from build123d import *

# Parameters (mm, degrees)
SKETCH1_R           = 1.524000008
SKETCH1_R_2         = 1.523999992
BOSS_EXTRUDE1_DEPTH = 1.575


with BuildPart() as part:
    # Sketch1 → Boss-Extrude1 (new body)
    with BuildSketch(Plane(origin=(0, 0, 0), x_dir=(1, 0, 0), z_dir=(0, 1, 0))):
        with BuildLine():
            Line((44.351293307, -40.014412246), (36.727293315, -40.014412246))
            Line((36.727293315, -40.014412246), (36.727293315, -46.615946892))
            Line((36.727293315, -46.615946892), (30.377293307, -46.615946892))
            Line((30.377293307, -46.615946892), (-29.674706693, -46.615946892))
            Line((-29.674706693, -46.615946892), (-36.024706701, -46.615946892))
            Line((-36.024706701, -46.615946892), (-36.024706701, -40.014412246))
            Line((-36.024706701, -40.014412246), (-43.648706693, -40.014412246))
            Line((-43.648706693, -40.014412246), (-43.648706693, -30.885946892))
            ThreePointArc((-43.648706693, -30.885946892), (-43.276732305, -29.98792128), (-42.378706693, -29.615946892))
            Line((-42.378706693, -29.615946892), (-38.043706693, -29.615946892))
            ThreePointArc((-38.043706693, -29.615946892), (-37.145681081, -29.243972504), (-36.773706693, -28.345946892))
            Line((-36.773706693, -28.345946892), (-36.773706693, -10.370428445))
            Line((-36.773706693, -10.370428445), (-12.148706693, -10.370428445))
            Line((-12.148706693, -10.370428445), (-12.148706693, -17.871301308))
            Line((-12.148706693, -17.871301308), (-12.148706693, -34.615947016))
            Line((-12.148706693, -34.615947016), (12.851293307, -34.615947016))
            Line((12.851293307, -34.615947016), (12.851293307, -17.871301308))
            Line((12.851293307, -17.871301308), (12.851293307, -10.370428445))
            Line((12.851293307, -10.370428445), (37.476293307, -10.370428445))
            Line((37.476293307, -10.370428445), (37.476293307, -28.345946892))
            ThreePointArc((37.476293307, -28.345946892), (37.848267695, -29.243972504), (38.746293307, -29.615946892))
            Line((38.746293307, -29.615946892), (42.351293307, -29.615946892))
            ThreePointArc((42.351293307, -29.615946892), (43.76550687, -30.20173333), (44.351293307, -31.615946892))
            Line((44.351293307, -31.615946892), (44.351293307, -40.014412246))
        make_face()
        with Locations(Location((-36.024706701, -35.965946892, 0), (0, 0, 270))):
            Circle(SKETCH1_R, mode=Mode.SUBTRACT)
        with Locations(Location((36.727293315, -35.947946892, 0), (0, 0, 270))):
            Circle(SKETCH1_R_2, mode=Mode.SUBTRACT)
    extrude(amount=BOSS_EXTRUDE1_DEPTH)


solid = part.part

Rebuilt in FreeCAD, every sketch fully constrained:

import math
import FreeCAD as App
import Part
import Sketcher

V = App.Vector
Q = App.Units.Quantity

doc = App.newDocument("Part")
body = doc.addObject("PartDesign::Body", "Body")

sketch1 = body.newObject("Sketcher::SketchObject", "Sketch")
sketch1.AttachmentSupport = (doc.getObject("XZ_Plane"), [""])
sketch1.MapMode = "FlatFace"
sketch1.addGeometry([
    Part.LineSegment(V(36.7, 40, 0), V(44.4, 40, 0)),
    Part.LineSegment(V(44.4, 40, 0), V(44.4, 31.6, 0)),
    Part.ArcOfCircle(Part.Circle(V(42.4, 31.6, 0), V(0, 0, 1), 2), math.radians(-90), math.radians(0)),
    Part.LineSegment(V(42.4, 29.6, 0), V(38.7, 29.6, 0)),
    Part.ArcOfCircle(Part.Circle(V(38.7, 28.3, 0), V(0, 0, 1), 1.3), math.radians(90), math.radians(180)),
    Part.LineSegment(V(37.5, 28.3, 0), V(37.5, 10.4, 0)),
    Part.LineSegment(V(37.5, 10.4, 0), V(12.9, 10.4, 0)),
    Part.LineSegment(V(12.9, 10.4, 0), V(12.9, 34.6, 0)),
    Part.LineSegment(V(12.9, 34.6, 0), V(-12.1, 34.6, 0)),
    Part.LineSegment(V(-12.1, 34.6, 0), V(-12.1, 10.4, 0)),
    Part.LineSegment(V(-12.1, 10.4, 0), V(-36.8, 10.4, 0)),
    Part.LineSegment(V(-36.8, 10.4, 0), V(-36.8, 28.3, 0)),
    Part.ArcOfCircle(Part.Circle(V(-38, 28.3, 0), V(0, 0, 1), 1.3), math.radians(0), math.radians(90)),
    Part.LineSegment(V(-38, 29.6, 0), V(-42.4, 29.6, 0)),
    Part.ArcOfCircle(Part.Circle(V(-42.4, 30.9, 0), V(0, 0, 1), 1.3), math.radians(180), math.radians(270)),
    Part.LineSegment(V(-43.6, 30.9, 0), V(-43.6, 40, 0)),
    Part.LineSegment(V(-43.6, 40, 0), V(-36, 40, 0)),
    Part.LineSegment(V(-36, 40, 0), V(-36, 46.6, 0)),
    Part.LineSegment(V(-36, 46.6, 0), V(36.7, 46.6, 0)),
    Part.LineSegment(V(36.7, 46.6, 0), V(36.7, 40, 0)),
    Part.Circle(V(-36, 36, 0), V(0, 0, 1), 1.5),
    Part.Circle(V(36.7, 35.9, 0), V(0, 0, 1), 1.5),
], False)
sketch1.addConstraint([
    Sketcher.Constraint("Coincident", 0, 2, 1, 1),
    Sketcher.Constraint("Tangent", 1, 2, 2, 2),
    Sketcher.Constraint("Tangent", 2, 1, 3, 1),
    Sketcher.Constraint("Tangent", 3, 2, 4, 1),
    Sketcher.Constraint("Tangent", 4, 2, 5, 1),
    Sketcher.Constraint("Coincident", 5, 2, 6, 1),
    Sketcher.Constraint("Coincident", 6, 2, 7, 1),
    Sketcher.Constraint("Coincident", 7, 2, 8, 1),
    Sketcher.Constraint("Coincident", 8, 2, 9, 1),
    Sketcher.Constraint("Coincident", 9, 2, 10, 1),
    Sketcher.Constraint("Coincident", 10, 2, 11, 1),
    Sketcher.Constraint("Tangent", 11, 2, 12, 1),
    Sketcher.Constraint("Tangent", 12, 2, 13, 1),
    Sketcher.Constraint("Tangent", 13, 2, 14, 2),
    Sketcher.Constraint("Tangent", 14, 1, 15, 1),
    Sketcher.Constraint("Coincident", 15, 2, 16, 1),
    Sketcher.Constraint("Coincident", 16, 2, 17, 1),
    Sketcher.Constraint("Coincident", 17, 2, 18, 1),
    Sketcher.Constraint("Coincident", 18, 2, 19, 1),
    Sketcher.Constraint("Coincident", 19, 2, 0, 1),
    Sketcher.Constraint("Horizontal", 0),
    Sketcher.Constraint("Vertical", 1),
    Sketcher.Constraint("Horizontal", 3),
    Sketcher.Constraint("Vertical", 5),
    Sketcher.Constraint("Horizontal", 6),
    Sketcher.Constraint("Vertical", 7),
    Sketcher.Constraint("Horizontal", 8),
    Sketcher.Constraint("Vertical", 9),
    Sketcher.Constraint("Horizontal", 10),
    Sketcher.Constraint("Vertical", 11),
    Sketcher.Constraint("Horizontal", 13),
    Sketcher.Constraint("Vertical", 15),
    Sketcher.Constraint("Horizontal", 16),
    Sketcher.Constraint("Vertical", 17),
    Sketcher.Constraint("Horizontal", 18),
    Sketcher.Constraint("Vertical", 19),
    Sketcher.Constraint("Equal", 4, 12),
    Sketcher.Constraint("Equal", 12, 14),
    Sketcher.Constraint("Equal", 20, 21),
    Sketcher.Constraint("Horizontal", 4, 3, 12, 3),
    Sketcher.Constraint("Horizontal", 6, 2, 9, 2),
    Sketcher.Constraint("Horizontal", 0, 2, 15, 2),
    Sketcher.Constraint("Vertical", 20, 3, 16, 2),
    Sketcher.Constraint("Vertical", 21, 3, 18, 2),
    Sketcher.Constraint("Equal", 6, 10),
    Sketcher.Constraint("Equal", 0, 16),
    Sketcher.Constraint("Radius", 2, Q("2 mm")),
    Sketcher.Constraint("DistanceX", 8, 2, 8, 1, Q("25 mm")),
    Sketcher.Constraint("Radius", 4, Q("1.27 mm")),
    Sketcher.Constraint("Diameter", 20, Q("3.048 mm")),
    Sketcher.Constraint("DistanceY", 3, 2, 7, 2, Q("5 mm")),
    Sketcher.Constraint("DistanceY", 12, 2, 17, 2, Q("17 mm")),
    Sketcher.Constraint("DistanceX", 0, 1, 0, 2, Q("7.624 mm")),
    Sketcher.Constraint("DistanceX", 3, 2, 3, 1, Q("3.605 mm")),
    Sketcher.Constraint("DistanceX", 6, 2, 6, 1, Q("24.625 mm")),
    Sketcher.Constraint("DistanceX", 13, 2, 13, 1, Q("4.335 mm")),
    Sketcher.Constraint("DistanceY", 12, 3, 20, 3, Q("7.62 mm")),
    Sketcher.Constraint("DistanceY", 2, 3, 21, 3, Q("4.332 mm")),
    Sketcher.Constraint("DistanceY", 5, 2, 5, 1, Q("17.975518 mm")),
    Sketcher.Constraint("DistanceY", 1, 2, 1, 1, Q("8.398465 mm")),
    Sketcher.Constraint("DistanceY", -1, 1, 5, 2, Q("10.370428 mm")),
    Sketcher.Constraint("DistanceX", -1, 1, 2, 3, Q("42.351293 mm")),
])
pad1 = body.newObject("PartDesign::Pad", "Pad")
pad1.Profile = sketch1
pad1.Length = 1.575
pad1.Reversed = True

doc.recompute()
